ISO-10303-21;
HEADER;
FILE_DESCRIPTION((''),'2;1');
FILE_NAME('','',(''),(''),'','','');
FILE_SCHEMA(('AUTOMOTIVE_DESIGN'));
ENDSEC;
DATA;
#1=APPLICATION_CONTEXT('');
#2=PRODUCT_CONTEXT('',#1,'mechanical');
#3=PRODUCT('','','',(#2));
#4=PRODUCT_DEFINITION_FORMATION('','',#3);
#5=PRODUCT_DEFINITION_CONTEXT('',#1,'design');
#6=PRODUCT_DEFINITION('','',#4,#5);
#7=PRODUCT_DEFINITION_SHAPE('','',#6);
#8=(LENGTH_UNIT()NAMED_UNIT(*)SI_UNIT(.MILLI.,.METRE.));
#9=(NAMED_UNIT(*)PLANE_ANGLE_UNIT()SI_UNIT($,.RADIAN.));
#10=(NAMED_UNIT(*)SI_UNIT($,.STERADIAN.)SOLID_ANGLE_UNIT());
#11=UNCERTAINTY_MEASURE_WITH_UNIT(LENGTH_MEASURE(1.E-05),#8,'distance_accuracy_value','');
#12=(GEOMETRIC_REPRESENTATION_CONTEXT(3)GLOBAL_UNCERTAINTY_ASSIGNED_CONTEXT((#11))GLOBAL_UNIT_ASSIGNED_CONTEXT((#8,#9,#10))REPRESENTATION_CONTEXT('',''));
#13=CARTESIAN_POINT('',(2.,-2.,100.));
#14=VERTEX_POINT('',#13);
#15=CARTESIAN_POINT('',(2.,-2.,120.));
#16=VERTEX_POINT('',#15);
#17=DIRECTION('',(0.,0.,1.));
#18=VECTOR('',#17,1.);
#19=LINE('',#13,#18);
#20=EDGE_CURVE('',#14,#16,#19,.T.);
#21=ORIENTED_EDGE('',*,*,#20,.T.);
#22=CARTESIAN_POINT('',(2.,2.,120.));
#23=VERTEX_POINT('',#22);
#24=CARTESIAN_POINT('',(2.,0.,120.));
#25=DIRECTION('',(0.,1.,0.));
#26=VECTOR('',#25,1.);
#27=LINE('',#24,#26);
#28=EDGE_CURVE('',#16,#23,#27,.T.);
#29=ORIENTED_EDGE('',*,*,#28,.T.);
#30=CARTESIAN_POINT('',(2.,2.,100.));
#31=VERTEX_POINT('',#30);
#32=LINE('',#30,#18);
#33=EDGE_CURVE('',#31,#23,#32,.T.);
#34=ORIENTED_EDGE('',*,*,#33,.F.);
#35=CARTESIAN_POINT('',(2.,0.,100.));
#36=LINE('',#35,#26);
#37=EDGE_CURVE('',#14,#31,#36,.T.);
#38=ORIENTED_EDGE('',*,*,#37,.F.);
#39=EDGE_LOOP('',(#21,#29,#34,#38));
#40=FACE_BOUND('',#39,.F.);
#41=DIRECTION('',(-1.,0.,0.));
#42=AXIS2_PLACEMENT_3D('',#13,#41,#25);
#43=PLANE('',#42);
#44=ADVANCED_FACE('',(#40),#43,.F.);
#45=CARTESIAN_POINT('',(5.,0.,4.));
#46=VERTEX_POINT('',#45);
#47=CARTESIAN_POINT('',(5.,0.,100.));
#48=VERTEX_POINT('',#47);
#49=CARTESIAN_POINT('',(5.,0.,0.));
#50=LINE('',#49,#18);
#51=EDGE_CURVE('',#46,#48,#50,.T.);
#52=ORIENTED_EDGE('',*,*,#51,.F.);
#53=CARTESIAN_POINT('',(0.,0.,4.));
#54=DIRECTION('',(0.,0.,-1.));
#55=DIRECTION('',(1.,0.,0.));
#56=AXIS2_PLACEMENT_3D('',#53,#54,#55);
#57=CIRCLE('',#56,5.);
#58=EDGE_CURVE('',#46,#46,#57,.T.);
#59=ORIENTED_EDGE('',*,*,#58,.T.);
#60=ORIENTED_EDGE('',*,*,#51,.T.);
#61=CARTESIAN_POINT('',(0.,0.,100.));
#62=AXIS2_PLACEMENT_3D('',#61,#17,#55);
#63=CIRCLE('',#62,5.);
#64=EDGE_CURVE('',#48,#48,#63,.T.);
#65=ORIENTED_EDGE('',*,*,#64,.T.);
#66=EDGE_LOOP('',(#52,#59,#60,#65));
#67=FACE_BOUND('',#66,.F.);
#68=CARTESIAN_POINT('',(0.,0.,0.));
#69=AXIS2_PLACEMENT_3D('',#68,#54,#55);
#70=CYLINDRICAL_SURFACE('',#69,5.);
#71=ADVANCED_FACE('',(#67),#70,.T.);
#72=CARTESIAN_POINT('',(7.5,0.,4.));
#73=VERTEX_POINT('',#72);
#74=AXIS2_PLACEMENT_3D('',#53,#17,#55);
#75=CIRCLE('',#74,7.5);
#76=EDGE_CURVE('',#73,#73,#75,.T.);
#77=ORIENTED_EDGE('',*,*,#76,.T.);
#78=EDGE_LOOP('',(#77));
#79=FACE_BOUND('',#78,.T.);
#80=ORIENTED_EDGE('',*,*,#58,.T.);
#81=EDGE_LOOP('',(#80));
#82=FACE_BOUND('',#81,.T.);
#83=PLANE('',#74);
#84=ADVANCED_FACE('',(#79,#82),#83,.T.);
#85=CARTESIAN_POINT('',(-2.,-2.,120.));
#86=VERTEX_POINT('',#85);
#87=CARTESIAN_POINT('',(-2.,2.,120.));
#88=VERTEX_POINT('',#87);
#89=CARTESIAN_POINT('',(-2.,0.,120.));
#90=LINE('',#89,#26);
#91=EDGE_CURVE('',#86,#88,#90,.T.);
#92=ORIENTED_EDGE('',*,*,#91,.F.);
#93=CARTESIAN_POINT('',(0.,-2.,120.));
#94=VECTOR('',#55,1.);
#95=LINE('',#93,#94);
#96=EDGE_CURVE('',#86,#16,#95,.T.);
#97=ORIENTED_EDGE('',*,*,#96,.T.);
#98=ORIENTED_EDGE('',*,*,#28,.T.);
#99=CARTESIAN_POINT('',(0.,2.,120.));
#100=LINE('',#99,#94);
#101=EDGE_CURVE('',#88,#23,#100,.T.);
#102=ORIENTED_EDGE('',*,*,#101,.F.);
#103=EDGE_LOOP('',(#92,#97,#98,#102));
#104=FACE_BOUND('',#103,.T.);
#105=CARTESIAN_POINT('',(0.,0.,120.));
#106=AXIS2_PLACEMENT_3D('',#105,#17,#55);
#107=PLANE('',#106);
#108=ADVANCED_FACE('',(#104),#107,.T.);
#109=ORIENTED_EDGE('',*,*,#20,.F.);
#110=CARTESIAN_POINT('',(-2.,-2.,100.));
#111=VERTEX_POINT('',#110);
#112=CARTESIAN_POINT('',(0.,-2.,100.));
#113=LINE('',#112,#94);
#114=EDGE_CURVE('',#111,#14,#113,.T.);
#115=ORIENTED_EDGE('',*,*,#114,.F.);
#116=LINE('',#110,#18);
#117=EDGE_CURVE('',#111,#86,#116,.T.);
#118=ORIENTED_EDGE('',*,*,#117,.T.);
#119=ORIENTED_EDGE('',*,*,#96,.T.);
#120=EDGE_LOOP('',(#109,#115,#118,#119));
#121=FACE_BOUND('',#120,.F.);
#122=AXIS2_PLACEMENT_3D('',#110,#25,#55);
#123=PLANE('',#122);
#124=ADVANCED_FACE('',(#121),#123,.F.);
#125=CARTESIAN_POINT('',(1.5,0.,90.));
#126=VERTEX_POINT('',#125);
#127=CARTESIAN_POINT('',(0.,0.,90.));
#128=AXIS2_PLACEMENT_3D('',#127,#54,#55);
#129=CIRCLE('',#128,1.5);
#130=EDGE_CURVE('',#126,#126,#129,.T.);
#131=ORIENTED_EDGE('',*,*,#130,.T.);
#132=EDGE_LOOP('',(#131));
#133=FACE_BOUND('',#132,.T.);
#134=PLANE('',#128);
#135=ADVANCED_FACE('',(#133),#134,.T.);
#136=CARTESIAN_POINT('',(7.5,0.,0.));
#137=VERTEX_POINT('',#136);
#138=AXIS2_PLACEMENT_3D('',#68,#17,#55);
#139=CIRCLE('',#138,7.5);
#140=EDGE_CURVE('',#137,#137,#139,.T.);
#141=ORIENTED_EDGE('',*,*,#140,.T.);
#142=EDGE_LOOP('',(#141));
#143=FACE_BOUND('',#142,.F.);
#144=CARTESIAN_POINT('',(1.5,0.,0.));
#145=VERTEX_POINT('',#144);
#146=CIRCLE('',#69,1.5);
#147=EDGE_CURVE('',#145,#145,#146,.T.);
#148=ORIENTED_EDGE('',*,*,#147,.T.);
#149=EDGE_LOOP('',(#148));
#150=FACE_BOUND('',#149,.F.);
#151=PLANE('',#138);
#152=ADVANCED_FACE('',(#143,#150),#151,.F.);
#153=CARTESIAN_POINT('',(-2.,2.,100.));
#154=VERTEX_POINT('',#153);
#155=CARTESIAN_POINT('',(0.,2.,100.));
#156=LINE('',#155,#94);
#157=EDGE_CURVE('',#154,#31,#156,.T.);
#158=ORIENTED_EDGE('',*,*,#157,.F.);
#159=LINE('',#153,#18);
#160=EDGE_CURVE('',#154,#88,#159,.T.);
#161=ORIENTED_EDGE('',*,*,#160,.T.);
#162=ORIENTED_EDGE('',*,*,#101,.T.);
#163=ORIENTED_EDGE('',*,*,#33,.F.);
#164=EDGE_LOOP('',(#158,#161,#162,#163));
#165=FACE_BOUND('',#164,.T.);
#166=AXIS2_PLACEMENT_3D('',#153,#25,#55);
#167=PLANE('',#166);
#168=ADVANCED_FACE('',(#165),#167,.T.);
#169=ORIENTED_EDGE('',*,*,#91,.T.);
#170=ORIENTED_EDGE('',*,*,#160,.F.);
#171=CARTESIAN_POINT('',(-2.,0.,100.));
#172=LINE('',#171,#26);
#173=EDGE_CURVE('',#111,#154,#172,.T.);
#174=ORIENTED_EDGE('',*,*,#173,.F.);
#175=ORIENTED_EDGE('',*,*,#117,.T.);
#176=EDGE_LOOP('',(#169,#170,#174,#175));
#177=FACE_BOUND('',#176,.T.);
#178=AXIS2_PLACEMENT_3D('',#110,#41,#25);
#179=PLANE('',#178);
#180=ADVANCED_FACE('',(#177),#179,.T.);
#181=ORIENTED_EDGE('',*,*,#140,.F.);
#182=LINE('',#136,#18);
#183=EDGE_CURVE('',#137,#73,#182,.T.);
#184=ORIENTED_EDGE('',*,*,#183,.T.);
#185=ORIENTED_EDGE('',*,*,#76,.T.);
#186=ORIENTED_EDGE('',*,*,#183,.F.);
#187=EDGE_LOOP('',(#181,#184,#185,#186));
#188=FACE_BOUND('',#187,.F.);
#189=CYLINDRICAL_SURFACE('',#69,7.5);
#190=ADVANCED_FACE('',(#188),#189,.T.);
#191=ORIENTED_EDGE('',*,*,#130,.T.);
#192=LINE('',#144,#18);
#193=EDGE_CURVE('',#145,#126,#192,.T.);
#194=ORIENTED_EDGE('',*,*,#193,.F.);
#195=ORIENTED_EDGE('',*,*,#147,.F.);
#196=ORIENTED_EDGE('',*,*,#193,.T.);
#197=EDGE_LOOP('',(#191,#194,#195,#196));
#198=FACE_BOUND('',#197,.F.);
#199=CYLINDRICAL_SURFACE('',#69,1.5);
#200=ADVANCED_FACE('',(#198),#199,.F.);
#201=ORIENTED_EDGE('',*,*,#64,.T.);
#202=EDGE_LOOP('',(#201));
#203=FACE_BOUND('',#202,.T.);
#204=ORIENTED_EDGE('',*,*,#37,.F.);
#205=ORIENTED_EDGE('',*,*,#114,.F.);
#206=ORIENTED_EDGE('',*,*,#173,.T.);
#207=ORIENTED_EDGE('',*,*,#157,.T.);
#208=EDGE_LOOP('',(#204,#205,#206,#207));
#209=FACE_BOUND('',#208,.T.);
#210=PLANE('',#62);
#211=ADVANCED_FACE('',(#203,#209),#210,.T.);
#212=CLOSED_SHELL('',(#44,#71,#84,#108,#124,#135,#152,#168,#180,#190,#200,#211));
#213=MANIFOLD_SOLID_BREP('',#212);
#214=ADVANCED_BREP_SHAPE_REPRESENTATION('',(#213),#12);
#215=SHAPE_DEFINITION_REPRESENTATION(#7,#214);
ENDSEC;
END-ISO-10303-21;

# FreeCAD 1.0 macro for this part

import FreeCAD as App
import Part
import Sketcher

V = App.Vector

doc = App.newDocument("Part")
body = doc.addObject("PartDesign::Body", "Body")

sketch1 = body.newObject("Sketcher::SketchObject", "Sketch")
sketch1.AttachmentSupport = (doc.getObject("XY_Plane"), [""])
sketch1.MapMode = "FlatFace"
sketch1.addGeometry(Part.Circle(V(0, 0, 0), V(0, 0, 1), 8), False)
sketch1.addConstraint([
    Sketcher.Constraint("Coincident", 0, 3, -1, 1),
    Sketcher.Constraint("Diameter", 0, 15.0),
])
pad1 = body.newObject("PartDesign::Pad", "Pad")
pad1.Profile = sketch1
pad1.Length = 4

sketch2 = body.newObject("Sketcher::SketchObject", "Sketch001")
sketch2.AttachmentSupport = (doc.getObject("XY_Plane"), [""])
sketch2.MapMode = "FlatFace"
sketch2.addGeometry(Part.Circle(V(0, 0, 0), V(0, 0, 1), 5), False)
sketch2.addConstraint([
    Sketcher.Constraint("Coincident", 0, 3, -1, 1),
    Sketcher.Constraint("Diameter", 0, 10.0),
])
pad2 = body.newObject("PartDesign::Pad", "Pad001")
pad2.Profile = sketch2
pad2.Length = 100

sketch3 = body.newObject("Sketcher::SketchObject", "Sketch002")
sketch3.AttachmentSupport = (doc.getObject("XY_Plane"), [""])
sketch3.MapMode = "FlatFace"
sketch3.AttachmentOffset = App.Placement(V(0, 0, 100), App.Rotation())
sketch3.addGeometry([
    Part.LineSegment(V(-2, 2, 0), V(-2, -2, 0)),
    Part.LineSegment(V(-2, -2, 0), V(2, -2, 0)),
    Part.LineSegment(V(2, -2, 0), V(2, 2, 0)),
    Part.LineSegment(V(2, 2, 0), V(-2, 2, 0)),
], False)
sketch3.addConstraint([
    Sketcher.Constraint("Coincident", 0, 2, 1, 1),
    Sketcher.Constraint("Coincident", 1, 2, 2, 1),
    Sketcher.Constraint("Coincident", 2, 2, 3, 1),
    Sketcher.Constraint("Coincident", 3, 2, 0, 1),
    Sketcher.Constraint("Vertical", 0),
    Sketcher.Constraint("Horizontal", 1),
    Sketcher.Constraint("Vertical", 2),
    Sketcher.Constraint("Horizontal", 3),
    Sketcher.Constraint("Symmetric", 0, 2, 2, 2, -1, 1),
    Sketcher.Constraint("Equal", 3, 0),
    Sketcher.Constraint("DistanceX", 1, 1, 1, 2, 4.0),
])
pad3 = body.newObject("PartDesign::Pad", "Pad002")
pad3.Profile = sketch3
pad3.Length = 20

sketch4 = body.newObject("Sketcher::SketchObject", "Sketch003")
sketch4.AttachmentSupport = (doc.getObject("XY_Plane"), [""])
sketch4.MapMode = "FlatFace"
sketch4.addGeometry(Part.Circle(V(0, 0, 0), V(0, 0, 1), 1.5), False)
sketch4.addConstraint([
    Sketcher.Constraint("Coincident", 0, 3, -1, 1),
    Sketcher.Constraint("Diameter", 0, 3.0),
])
pocket1 = body.newObject("PartDesign::Pocket", "Pocket")
pocket1.Profile = sketch4
pocket1.Length = 90
pocket1.Reversed = True

doc.recompute()
